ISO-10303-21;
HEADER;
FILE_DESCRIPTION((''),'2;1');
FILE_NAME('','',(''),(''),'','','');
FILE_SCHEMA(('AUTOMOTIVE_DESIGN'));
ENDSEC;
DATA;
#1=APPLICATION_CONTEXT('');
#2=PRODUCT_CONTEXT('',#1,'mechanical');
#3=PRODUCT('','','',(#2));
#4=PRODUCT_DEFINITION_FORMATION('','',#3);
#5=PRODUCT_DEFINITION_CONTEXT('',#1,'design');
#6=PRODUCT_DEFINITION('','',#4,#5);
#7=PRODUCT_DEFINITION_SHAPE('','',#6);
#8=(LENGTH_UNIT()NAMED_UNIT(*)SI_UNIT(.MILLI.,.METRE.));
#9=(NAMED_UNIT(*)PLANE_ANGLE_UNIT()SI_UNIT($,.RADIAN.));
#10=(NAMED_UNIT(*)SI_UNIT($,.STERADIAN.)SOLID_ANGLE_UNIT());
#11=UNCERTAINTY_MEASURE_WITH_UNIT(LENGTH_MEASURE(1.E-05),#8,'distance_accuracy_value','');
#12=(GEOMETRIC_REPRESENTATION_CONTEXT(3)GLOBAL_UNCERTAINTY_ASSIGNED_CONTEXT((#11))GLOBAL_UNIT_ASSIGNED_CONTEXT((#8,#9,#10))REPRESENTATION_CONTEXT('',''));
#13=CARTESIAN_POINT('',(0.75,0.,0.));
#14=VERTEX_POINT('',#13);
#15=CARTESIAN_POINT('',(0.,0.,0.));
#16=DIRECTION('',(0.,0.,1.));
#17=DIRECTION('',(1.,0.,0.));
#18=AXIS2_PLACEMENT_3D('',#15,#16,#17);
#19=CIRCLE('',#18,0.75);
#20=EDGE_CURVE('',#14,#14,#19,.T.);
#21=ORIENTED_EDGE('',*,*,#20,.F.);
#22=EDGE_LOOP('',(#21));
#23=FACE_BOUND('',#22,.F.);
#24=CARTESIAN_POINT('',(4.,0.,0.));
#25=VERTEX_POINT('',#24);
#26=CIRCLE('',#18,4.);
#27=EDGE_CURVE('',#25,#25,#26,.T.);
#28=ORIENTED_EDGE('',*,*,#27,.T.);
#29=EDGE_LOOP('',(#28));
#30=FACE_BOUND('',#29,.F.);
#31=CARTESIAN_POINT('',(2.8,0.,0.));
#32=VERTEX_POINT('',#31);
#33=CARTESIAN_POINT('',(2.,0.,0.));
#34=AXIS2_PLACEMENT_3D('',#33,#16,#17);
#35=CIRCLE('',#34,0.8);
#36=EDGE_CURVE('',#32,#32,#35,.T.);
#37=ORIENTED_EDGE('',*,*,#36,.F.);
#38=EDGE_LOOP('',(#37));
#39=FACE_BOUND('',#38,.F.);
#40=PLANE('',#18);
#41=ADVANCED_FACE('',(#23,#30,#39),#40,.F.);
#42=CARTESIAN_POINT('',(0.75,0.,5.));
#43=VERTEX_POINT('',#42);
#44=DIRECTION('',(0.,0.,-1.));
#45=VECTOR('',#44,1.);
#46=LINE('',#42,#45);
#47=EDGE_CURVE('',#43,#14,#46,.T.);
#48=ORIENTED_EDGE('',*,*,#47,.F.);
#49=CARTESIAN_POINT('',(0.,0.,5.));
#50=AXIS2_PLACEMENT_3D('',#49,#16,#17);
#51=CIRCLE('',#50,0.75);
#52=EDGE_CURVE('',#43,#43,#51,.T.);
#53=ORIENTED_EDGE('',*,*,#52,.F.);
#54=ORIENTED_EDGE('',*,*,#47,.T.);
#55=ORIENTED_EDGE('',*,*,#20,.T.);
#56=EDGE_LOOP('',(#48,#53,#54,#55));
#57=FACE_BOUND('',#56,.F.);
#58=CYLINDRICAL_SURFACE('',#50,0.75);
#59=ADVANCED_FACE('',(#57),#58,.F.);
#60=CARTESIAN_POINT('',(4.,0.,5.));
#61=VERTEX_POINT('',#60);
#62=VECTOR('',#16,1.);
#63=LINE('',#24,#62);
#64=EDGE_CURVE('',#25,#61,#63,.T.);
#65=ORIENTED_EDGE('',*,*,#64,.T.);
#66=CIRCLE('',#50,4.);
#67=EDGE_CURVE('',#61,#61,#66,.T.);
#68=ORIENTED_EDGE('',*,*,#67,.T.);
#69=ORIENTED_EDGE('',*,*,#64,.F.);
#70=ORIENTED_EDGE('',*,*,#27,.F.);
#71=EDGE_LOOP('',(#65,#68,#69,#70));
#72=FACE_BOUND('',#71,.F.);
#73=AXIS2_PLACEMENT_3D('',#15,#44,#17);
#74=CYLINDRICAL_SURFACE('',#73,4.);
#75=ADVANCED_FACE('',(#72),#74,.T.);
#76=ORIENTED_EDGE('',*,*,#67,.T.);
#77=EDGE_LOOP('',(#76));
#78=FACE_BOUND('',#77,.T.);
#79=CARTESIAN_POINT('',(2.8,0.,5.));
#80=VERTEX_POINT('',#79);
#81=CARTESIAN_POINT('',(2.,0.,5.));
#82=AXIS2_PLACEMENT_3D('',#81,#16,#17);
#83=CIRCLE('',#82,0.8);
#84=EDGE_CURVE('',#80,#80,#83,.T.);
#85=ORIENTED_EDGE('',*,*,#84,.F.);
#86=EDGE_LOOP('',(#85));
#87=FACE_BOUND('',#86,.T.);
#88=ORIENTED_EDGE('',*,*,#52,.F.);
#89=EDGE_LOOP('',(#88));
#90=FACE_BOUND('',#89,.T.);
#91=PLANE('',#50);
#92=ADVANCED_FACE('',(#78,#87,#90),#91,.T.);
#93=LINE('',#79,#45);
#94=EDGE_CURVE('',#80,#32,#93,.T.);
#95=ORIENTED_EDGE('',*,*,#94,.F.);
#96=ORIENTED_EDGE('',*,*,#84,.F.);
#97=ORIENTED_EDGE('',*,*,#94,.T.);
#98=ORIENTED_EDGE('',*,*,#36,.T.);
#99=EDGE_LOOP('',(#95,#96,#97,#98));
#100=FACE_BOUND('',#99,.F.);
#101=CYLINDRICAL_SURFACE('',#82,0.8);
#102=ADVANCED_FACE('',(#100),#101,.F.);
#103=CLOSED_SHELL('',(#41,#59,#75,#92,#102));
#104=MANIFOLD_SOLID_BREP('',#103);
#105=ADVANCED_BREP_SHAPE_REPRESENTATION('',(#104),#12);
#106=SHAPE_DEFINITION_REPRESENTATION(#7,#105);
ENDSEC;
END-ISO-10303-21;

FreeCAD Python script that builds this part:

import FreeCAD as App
import Part
import Sketcher
Q = App.Units.Quantity

doc = App.newDocument("Part")
body = doc.addObject("PartDesign::Body", "Body")

# Sketch on XY plane
sketch1 = body.newObject("Sketcher::SketchObject", "Sketch")
sketch1.AttachmentSupport = (doc.getObject("XY_Plane"), [""])
sketch1.MapMode = "FlatFace"
sketch1.addGeometry(Part.Circle(App.Vector(0, 0, 0), App.Vector(0, 0, 1), 4), False)
sketch1.addConstraint(Sketcher.Constraint("Coincident", 0, 3, -1, 1))
sketch1.addConstraint(Sketcher.Constraint("Diameter", 0, Q("8 mm")))
pad1 = body.newObject("PartDesign::Pad", "Pad")
pad1.Profile = sketch1
pad1.Length = 5

# Sketch on XY plane
sketch2 = body.newObject("Sketcher::SketchObject", "Sketch001")
sketch2.AttachmentSupport = (doc.getObject("XY_Plane"), [""])
sketch2.MapMode = "FlatFace"
sketch2.AttachmentOffset = App.Placement(App.Vector(0, 0, 5), App.Rotation())
sketch2.addGeometry(Part.Circle(App.Vector(0, 0, 0), App.Vector(0, 0, 1), 0.8), False)
sketch2.addConstraint(Sketcher.Constraint("Coincident", 0, 3, -1, 1))
sketch2.addConstraint(Sketcher.Constraint("Diameter", 0, Q("1.5 mm")))
pocket1 = body.newObject("PartDesign::Pocket", "Pocket")
pocket1.Profile = sketch2
pocket1.Length = 5

# Sketch on XY plane
sketch3 = body.newObject("Sketcher::SketchObject", "Sketch002")
sketch3.AttachmentSupport = (doc.getObject("XY_Plane"), [""])
sketch3.MapMode = "FlatFace"
sketch3.AttachmentOffset = App.Placement(App.Vector(0, 0, 5), App.Rotation())
sketch3.addGeometry(Part.Circle(App.Vector(2, 0, 0), App.Vector(0, 0, 1), 0.8), False)
sketch3.addConstraint(Sketcher.Constraint("PointOnObject", 0, 3, -1))
sketch3.addConstraint(Sketcher.Constraint("Diameter", 0, Q("1.6 mm")))
sketch3.addConstraint(Sketcher.Constraint("DistanceX", -1, 1, 0, 3, Q("2 mm")))
pocket2 = body.newObject("PartDesign::Pocket", "Pocket001")
pocket2.Profile = sketch3
pocket2.Length = 5

doc.recompute()
